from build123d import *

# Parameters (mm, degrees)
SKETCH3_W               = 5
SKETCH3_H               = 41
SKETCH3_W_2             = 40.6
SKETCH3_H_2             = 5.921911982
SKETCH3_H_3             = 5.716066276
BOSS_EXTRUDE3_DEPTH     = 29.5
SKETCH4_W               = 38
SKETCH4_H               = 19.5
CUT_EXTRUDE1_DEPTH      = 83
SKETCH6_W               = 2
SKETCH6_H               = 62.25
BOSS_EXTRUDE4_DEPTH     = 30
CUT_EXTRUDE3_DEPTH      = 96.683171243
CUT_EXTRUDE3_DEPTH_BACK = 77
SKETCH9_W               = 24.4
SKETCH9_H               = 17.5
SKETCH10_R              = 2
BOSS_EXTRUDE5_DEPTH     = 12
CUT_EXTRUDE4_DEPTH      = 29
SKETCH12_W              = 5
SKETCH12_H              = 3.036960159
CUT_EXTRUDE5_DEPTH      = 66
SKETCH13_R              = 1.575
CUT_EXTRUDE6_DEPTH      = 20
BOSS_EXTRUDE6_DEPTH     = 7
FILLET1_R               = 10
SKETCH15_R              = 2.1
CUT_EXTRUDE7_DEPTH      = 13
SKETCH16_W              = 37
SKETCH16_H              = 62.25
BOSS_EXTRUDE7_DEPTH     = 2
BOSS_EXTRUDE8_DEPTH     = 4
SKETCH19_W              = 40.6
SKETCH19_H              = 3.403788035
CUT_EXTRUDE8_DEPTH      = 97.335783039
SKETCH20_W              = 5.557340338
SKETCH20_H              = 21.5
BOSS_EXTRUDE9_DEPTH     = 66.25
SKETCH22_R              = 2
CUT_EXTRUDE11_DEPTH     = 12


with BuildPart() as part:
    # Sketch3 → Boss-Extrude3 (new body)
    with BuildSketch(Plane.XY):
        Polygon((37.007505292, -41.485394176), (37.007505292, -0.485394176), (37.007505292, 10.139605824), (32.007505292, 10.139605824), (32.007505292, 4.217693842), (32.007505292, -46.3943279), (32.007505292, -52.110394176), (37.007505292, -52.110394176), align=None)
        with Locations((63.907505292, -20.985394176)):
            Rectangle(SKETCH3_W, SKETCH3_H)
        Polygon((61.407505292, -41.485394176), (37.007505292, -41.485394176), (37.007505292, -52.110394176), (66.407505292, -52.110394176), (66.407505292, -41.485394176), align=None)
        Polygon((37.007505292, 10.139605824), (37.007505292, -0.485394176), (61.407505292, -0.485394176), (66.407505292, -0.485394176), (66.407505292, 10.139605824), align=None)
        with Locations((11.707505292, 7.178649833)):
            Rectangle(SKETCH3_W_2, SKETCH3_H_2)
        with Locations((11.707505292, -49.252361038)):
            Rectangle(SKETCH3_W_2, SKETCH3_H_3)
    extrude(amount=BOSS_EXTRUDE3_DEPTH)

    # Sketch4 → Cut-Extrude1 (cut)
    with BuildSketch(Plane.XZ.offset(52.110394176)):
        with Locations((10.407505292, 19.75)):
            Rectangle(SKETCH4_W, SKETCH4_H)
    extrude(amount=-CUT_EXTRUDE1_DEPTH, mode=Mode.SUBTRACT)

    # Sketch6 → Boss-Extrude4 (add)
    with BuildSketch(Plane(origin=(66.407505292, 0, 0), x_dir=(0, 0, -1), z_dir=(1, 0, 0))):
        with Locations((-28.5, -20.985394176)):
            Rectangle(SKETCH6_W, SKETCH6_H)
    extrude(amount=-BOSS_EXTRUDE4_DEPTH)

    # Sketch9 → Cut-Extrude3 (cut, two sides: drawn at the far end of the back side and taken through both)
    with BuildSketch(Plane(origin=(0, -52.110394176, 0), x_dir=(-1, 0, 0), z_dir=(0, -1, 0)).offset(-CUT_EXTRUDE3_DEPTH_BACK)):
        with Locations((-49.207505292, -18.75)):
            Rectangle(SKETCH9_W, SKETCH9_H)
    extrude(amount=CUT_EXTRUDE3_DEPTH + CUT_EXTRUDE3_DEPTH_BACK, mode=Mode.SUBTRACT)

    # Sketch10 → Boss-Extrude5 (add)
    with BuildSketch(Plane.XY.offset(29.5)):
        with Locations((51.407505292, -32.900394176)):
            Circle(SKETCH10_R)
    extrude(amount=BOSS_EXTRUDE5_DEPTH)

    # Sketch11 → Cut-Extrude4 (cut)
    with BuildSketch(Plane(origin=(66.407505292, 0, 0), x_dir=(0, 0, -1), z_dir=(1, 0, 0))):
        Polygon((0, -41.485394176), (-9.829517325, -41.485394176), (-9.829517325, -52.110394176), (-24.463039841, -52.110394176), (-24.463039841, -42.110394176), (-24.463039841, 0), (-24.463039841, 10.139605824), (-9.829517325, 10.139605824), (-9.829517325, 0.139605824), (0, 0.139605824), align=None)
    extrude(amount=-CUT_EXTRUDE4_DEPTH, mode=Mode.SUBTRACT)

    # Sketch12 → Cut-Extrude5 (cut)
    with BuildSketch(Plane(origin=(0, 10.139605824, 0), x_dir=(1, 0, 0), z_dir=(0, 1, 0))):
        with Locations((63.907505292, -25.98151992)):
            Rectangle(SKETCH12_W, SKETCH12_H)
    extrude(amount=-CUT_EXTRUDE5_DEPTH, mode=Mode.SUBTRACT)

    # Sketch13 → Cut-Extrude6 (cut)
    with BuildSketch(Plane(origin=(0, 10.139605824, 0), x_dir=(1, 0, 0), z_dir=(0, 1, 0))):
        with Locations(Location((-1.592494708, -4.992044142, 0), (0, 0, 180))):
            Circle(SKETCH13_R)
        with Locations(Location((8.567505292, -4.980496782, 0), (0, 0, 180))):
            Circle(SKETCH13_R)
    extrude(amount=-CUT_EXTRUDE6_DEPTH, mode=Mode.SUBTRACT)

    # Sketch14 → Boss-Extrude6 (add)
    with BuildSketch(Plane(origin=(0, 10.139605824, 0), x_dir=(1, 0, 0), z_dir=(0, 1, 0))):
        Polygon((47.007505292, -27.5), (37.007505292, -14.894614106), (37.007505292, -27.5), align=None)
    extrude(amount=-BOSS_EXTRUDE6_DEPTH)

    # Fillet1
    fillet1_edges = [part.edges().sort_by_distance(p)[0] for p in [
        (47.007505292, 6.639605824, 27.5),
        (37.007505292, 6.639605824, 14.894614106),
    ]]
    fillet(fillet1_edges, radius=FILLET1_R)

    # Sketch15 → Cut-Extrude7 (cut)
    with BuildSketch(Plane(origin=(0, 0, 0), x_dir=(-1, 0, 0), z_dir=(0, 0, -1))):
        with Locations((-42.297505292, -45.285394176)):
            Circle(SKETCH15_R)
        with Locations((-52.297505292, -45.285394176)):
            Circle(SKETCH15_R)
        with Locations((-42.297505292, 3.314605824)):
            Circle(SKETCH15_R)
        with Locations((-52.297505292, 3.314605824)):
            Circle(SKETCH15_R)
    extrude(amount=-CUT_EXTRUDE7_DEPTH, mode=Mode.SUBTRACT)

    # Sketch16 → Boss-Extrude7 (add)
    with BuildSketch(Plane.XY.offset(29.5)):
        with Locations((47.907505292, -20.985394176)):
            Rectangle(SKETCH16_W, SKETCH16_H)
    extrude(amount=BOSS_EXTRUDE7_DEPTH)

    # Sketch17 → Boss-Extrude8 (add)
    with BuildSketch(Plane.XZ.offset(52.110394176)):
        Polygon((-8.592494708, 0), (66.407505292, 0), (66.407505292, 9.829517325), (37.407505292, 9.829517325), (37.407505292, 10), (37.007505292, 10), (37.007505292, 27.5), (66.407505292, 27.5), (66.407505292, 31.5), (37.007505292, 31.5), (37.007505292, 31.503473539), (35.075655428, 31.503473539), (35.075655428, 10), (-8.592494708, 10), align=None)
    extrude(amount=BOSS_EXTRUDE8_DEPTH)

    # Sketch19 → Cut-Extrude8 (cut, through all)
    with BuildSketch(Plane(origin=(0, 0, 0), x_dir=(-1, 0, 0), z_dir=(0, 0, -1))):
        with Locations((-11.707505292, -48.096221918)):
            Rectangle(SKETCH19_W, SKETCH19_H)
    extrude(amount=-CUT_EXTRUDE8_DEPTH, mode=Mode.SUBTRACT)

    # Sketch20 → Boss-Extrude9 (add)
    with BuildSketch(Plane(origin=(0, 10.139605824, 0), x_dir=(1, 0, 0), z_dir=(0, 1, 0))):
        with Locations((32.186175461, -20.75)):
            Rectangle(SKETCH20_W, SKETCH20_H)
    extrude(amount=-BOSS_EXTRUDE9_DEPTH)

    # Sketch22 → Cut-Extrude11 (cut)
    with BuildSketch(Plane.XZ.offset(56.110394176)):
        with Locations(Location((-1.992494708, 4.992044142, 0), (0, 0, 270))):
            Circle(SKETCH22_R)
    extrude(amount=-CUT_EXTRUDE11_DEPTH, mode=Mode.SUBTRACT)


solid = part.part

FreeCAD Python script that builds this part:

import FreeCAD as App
import Part
import Sketcher
Q = App.Units.Quantity


def edges_at(feature, points):
    """Names of the edges that pass closest to the given points."""
    edges = feature.Shape.Edges
    near = lambda p: min(range(len(edges)), key=lambda i: edges[i].distToShape(Part.Vertex(*p))[0])
    return sorted({f"Edge{near(p) + 1}" for p in points})


def add_polygon(sketch, points):
    """Adds a closed chain of lines whose ends are joined by coincident constraints."""
    first, n = sketch.GeometryCount, len(points)
    for a, b in zip(points, points[1:] + points[:1]):
        sketch.addGeometry(Part.LineSegment(App.Vector(*a, 0), App.Vector(*b, 0)), False)
    for i in range(n):
        sketch.addConstraint(Sketcher.Constraint("Coincident", first + i, 2, first + (i + 1) % n, 1))

doc = App.newDocument("Part")
body = doc.addObject("PartDesign::Body", "Body")

sketch1 = body.newObject("Sketcher::SketchObject", "Sketch")
sketch1.AttachmentSupport = (doc.getObject("XY_Plane"), [""])
sketch1.MapMode = "FlatFace"
add_polygon(sketch1, [(32, 4), (32, -46), (-9, -46), (-9, -52), (66, -52), (66, 10), (-9, 10), (-9, 4)])
add_polygon(sketch1, [(61, 0), (61, -41), (37, -41), (37, 0)])
sketch1.addConstraint(Sketcher.Constraint("Vertical", 0))
sketch1.addConstraint(Sketcher.Constraint("Horizontal", 1))
sketch1.addConstraint(Sketcher.Constraint("Vertical", 2))
sketch1.addConstraint(Sketcher.Constraint("Horizontal", 3))
sketch1.addConstraint(Sketcher.Constraint("Vertical", 4))
sketch1.addConstraint(Sketcher.Constraint("Horizontal", 5))
sketch1.addConstraint(Sketcher.Constraint("Vertical", 6))
sketch1.addConstraint(Sketcher.Constraint("Horizontal", 7))
sketch1.addConstraint(Sketcher.Constraint("Vertical", 8))
sketch1.addConstraint(Sketcher.Constraint("Horizontal", 9))
sketch1.addConstraint(Sketcher.Constraint("Vertical", 10))
sketch1.addConstraint(Sketcher.Constraint("Horizontal", 11))
sketch1.addConstraint(Sketcher.Constraint("Vertical", 2, 2, 5, 2))
sketch1.addConstraint(Sketcher.Constraint("DistanceX", 3, 1, 3, 2, Q("75 mm")))
sketch1.addConstraint(Sketcher.Constraint("DistanceY", 8, 2, 8, 1, Q("41 mm")))
sketch1.addConstraint(Sketcher.Constraint("DistanceX", 1, 2, 1, 1, Q("40.6 mm")))
sketch1.addConstraint(Sketcher.Constraint("DistanceX", 9, 2, 9, 1, Q("24.4 mm")))
sketch1.addConstraint(Sketcher.Constraint("DistanceX", 8, 2, 3, 2, Q("5 mm")))
sketch1.addConstraint(Sketcher.Constraint("DistanceY", 4, 1, 4, 2, Q("62.25 mm")))
sketch1.addConstraint(Sketcher.Constraint("DistanceY", 3, 2, 8, 2, Q("10.625 mm")))
sketch1.addConstraint(Sketcher.Constraint("DistanceY", 0, 2, 0, 1, Q("50.612022 mm")))
sketch1.addConstraint(Sketcher.Constraint("DistanceY", 6, 2, 6, 1, Q("5.921912 mm")))
sketch1.addConstraint(Sketcher.Constraint("DistanceX", -1, 1, 0, 2, Q("32.007505 mm")))
sketch1.addConstraint(Sketcher.Constraint("DistanceY", 0, 2, -1, 1, Q("46.394328 mm")))
pad1 = body.newObject("PartDesign::Pad", "Pad")
pad1.Profile = sketch1
pad1.Length = 29.5

sketch2 = body.newObject("Sketcher::SketchObject", "Sketch001")
sketch2.AttachmentSupport = (doc.getObject("XZ_Plane"), [""])
sketch2.MapMode = "FlatFace"
sketch2.AttachmentOffset = App.Placement(App.Vector(0, 0, 52.110394), App.Rotation())
add_polygon(sketch2, [(-9, 30), (-9, 10), (29, 10), (29, 30)])
sketch2.addConstraint(Sketcher.Constraint("Vertical", 0))
sketch2.addConstraint(Sketcher.Constraint("Horizontal", 1))
sketch2.addConstraint(Sketcher.Constraint("Vertical", 2))
sketch2.addConstraint(Sketcher.Constraint("Horizontal", 3))
sketch2.addConstraint(Sketcher.Constraint("DistanceX", 1, 1, 1, 2, Q("38 mm")))
sketch2.addConstraint(Sketcher.Constraint("DistanceY", 0, 2, 0, 1, Q("19.5 mm")))
sketch2.addConstraint(Sketcher.Constraint("DistanceY", -1, 1, 0, 2, Q("10 mm")))
sketch2.addConstraint(Sketcher.Constraint("DistanceX", 0, 2, -1, 1, Q("8.592495 mm")))
pocket1 = body.newObject("PartDesign::Pocket", "Pocket")
pocket1.Profile = sketch2
pocket1.Length = 83

sketch3 = body.newObject("Sketcher::SketchObject", "Sketch002")
sketch3.AttachmentSupport = (doc.getObject("YZ_Plane"), [""])
sketch3.MapMode = "FlatFace"
sketch3.AttachmentOffset = App.Placement(App.Vector(0, 0, 66.407505), App.Rotation())
add_polygon(sketch3, [(10.1, 29.5), (-52.1, 29.5), (-52.1, 27.5), (10.1, 27.5)])
sketch3.addConstraint(Sketcher.Constraint("Horizontal", 0))
sketch3.addConstraint(Sketcher.Constraint("Vertical", 1))
sketch3.addConstraint(Sketcher.Constraint("Horizontal", 2))
sketch3.addConstraint(Sketcher.Constraint("Vertical", 3))
sketch3.addConstraint(Sketcher.Constraint("DistanceY", 1, 2, 1, 1, Q("2 mm")))
sketch3.addConstraint(Sketcher.Constraint("DistanceX", 0, 2, 0, 1, Q("62.25 mm")))
sketch3.addConstraint(Sketcher.Constraint("DistanceY", -1, 1, 0, 2, Q("29.5 mm")))
sketch3.addConstraint(Sketcher.Constraint("DistanceX", 0, 2, -1, 1, Q("52.110394 mm")))
pad2 = body.newObject("PartDesign::Pad", "Pad001")
pad2.Profile = sketch3
pad2.Length = 30
pad2.Reversed = True

sketch4 = body.newObject("Sketcher::SketchObject", "Sketch003")
sketch4.AttachmentSupport = (doc.getObject("XZ_Plane"), [""])
sketch4.MapMode = "FlatFace"
sketch4.AttachmentOffset = App.Placement(App.Vector(0, 0, 52.110394), App.Rotation())
add_polygon(sketch4, [(61, 10), (61, 28), (37, 28), (37, 10)])
sketch4.addConstraint(Sketcher.Constraint("Vertical", 0))
sketch4.addConstraint(Sketcher.Constraint("Horizontal", 1))
sketch4.addConstraint(Sketcher.Constraint("Vertical", 2))
sketch4.addConstraint(Sketcher.Constraint("Horizontal", 3))
sketch4.addConstraint(Sketcher.Constraint("DistanceX", 1, 2, 1, 1, Q("24.4 mm")))
sketch4.addConstraint(Sketcher.Constraint("DistanceY", 0, 1, 0, 2, Q("17.5 mm")))
sketch4.addConstraint(Sketcher.Constraint("DistanceY", -1, 1, 2, 2, Q("10 mm")))
sketch4.addConstraint(Sketcher.Constraint("DistanceX", -1, 1, 0, 2, Q("61.407505 mm")))
pocket2 = body.newObject("PartDesign::Pocket", "Pocket001")
pocket2.Profile = sketch4
pocket2.Type = "ThroughAll"
pocket2.Midplane = True

sketch5 = body.newObject("Sketcher::SketchObject", "Sketch004")
sketch5.AttachmentSupport = (doc.getObject("XY_Plane"), [""])
sketch5.MapMode = "FlatFace"
sketch5.AttachmentOffset = App.Placement(App.Vector(0, 0, 29.5), App.Rotation())
sketch5.addGeometry(Part.Circle(App.Vector(51.4, -32.9, 0), App.Vector(0, 0, 1), 2), False)
sketch5.addConstraint(Sketcher.Constraint("Diameter", 0, Q("4 mm")))
sketch5.addConstraint(Sketcher.Constraint("DistanceX", -1, 1, 0, 3, Q("51.407505 mm")))
sketch5.addConstraint(Sketcher.Constraint("DistanceY", 0, 3, -1, 1, Q("32.900394 mm")))
pad3 = body.newObject("PartDesign::Pad", "Pad002")
pad3.Profile = sketch5
pad3.Length = 12

sketch6 = body.newObject("Sketcher::SketchObject", "Sketch005")
sketch6.AttachmentSupport = (doc.getObject("YZ_Plane"), [""])
sketch6.MapMode = "FlatFace"
sketch6.AttachmentOffset = App.Placement(App.Vector(0, 0, 66.407505), App.Rotation())
add_polygon(sketch6, [(-41, 10), (-41, 0), (0, 0), (0, 10), (10, 10), (10, 24), (-52, 24), (-52, 10)])
sketch6.addConstraint(Sketcher.Constraint("Vertical", 0))
sketch6.addConstraint(Sketcher.Constraint("Horizontal", 1))
sketch6.addConstraint(Sketcher.Constraint("Vertical", 2))
sketch6.addConstraint(Sketcher.Constraint("Horizontal", 3))
sketch6.addConstraint(Sketcher.Constraint("Vertical", 4))
sketch6.addConstraint(Sketcher.Constraint("Horizontal", 5))
sketch6.addConstraint(Sketcher.Constraint("Vertical", 6))
sketch6.addConstraint(Sketcher.Constraint("Horizontal", 7))
sketch6.addConstraint(Sketcher.Constraint("PointOnObject", 0, 2, -1))
sketch6.addConstraint(Sketcher.Constraint("Horizontal", 3, 2, 6, 2))
sketch6.addConstraint(Sketcher.Constraint("DistanceX", 3, 1, 3, 2, Q("10 mm")))
sketch6.addConstraint(Sketcher.Constraint("DistanceX", 5, 2, 5, 1, Q("62.25 mm")))
sketch6.addConstraint(Sketcher.Constraint("DistanceX", 1, 1, 1, 2, Q("41.625 mm")))
sketch6.addConstraint(Sketcher.Constraint("DistanceY", 0, 2, 0, 1, Q("9.829517 mm")))
sketch6.addConstraint(Sketcher.Constraint("DistanceY", 4, 1, 4, 2, Q("14.633523 mm")))
sketch6.addConstraint(Sketcher.Constraint("DistanceX", 0, 2, -1, 1, Q("41.485394 mm")))
pocket3 = body.newObject("PartDesign::Pocket", "Pocket002")
pocket3.Profile = sketch6
pocket3.Length = 29

sketch7 = body.newObject("Sketcher::SketchObject", "Sketch006")
sketch7.AttachmentSupport = (doc.getObject("XZ_Plane"), [""])
sketch7.MapMode = "FlatFace"
sketch7.AttachmentOffset = App.Placement(App.Vector(0, 0, -10.139606), App.Rotation())
add_polygon(sketch7, [(61.4, 24.5), (61.4, 27.5), (66.4, 27.5), (66.4, 24.5)])
sketch7.addConstraint(Sketcher.Constraint("Vertical", 0))
sketch7.addConstraint(Sketcher.Constraint("Horizontal", 1))
sketch7.addConstraint(Sketcher.Constraint("Vertical", 2))
sketch7.addConstraint(Sketcher.Constraint("Horizontal", 3))
sketch7.addConstraint(Sketcher.Constraint("DistanceX", 1, 1, 1, 2, Q("5 mm")))
sketch7.addConstraint(Sketcher.Constraint("DistanceY", -1, 1, 0, 2, Q("27.5 mm")))
sketch7.addConstraint(Sketcher.Constraint("DistanceY", 0, 1, 0, 2, Q("3.03696 mm")))
sketch7.addConstraint(Sketcher.Constraint("DistanceX", -1, 1, 0, 2, Q("61.407505 mm")))
pocket4 = body.newObject("PartDesign::Pocket", "Pocket003")
pocket4.Profile = sketch7
pocket4.Length = 66
pocket4.Reversed = True

sketch8 = body.newObject("Sketcher::SketchObject", "Sketch007")
sketch8.AttachmentSupport = (doc.getObject("XZ_Plane"), [""])
sketch8.MapMode = "FlatFace"
sketch8.AttachmentOffset = App.Placement(App.Vector(0, 0, -10.139606), App.Rotation())
sketch8.addGeometry(Part.Circle(App.Vector(-1.6, 5, 0), App.Vector(0, 0, 1), 1.6), False)
sketch8.addGeometry(Part.Circle(App.Vector(8.6, 5, 0), App.Vector(0, 0, 1), 1.6), False)
sketch8.addConstraint(Sketcher.Constraint("Equal", 0, 1))
sketch8.addConstraint(Sketcher.Constraint("Diameter", 0, Q("3.15 mm")))
sketch8.addConstraint(Sketcher.Constraint("DistanceX", 0, 3, 1, 3, Q("10.16 mm")))
sketch8.addConstraint(Sketcher.Constraint("DistanceX", 0, 3, -1, 1, Q("1.592495 mm")))
sketch8.addConstraint(Sketcher.Constraint("DistanceY", -1, 1, 0, 3, Q("4.992044 mm")))
sketch8.addConstraint(Sketcher.Constraint("DistanceY", -1, 1, 1, 3, Q("4.980497 mm")))
pocket5 = body.newObject("PartDesign::Pocket", "Pocket004")
pocket5.Profile = sketch8
pocket5.Length = 20
pocket5.Reversed = True

sketch9 = body.newObject("Sketcher::SketchObject", "Sketch008")
sketch9.AttachmentSupport = (doc.getObject("XZ_Plane"), [""])
sketch9.MapMode = "FlatFace"
sketch9.AttachmentOffset = App.Placement(App.Vector(0, 0, -10.139606), App.Rotation())
add_polygon(sketch9, [(47, 28), (37, 15), (37, 28)])
sketch9.addConstraint(Sketcher.Constraint("Vertical", 1))
sketch9.addConstraint(Sketcher.Constraint("Horizontal", 2))
sketch9.addConstraint(Sketcher.Constraint("DistanceX", 2, 1, 2, 2, Q("10 mm")))
sketch9.addConstraint(Sketcher.Constraint("DistanceY", -1, 1, 1, 2, Q("27.5 mm")))
sketch9.addConstraint(Sketcher.Constraint("DistanceY", 1, 1, 1, 2, Q("12.605386 mm")))
sketch9.addConstraint(Sketcher.Constraint("DistanceX", -1, 1, 0, 2, Q("37.007505 mm")))
pad4 = body.newObject("PartDesign::Pad", "Pad003")
pad4.Profile = sketch9
pad4.Length = 7
doc.recompute()

fillet = body.newObject("PartDesign::Fillet", "Fillet")
fillet.Base = (pad4, edges_at(pad4, [(47.008, 6.64, 27.5), (37.008, 6.64, 14.895)]))
fillet.Radius = 10

sketch10 = body.newObject("Sketcher::SketchObject", "Sketch009")
sketch10.AttachmentSupport = (doc.getObject("XY_Plane"), [""])
sketch10.MapMode = "FlatFace"
sketch10.addGeometry(Part.Circle(App.Vector(42.3, -45.3, 0), App.Vector(0, 0, 1), 2.1), False)
sketch10.addGeometry(Part.Circle(App.Vector(52.3, -45.3, 0), App.Vector(0, 0, 1), 2.1), False)
sketch10.addGeometry(Part.Circle(App.Vector(42.3, 3.3, 0), App.Vector(0, 0, 1), 2.1), False)
sketch10.addGeometry(Part.Circle(App.Vector(52.3, 3.3, 0), App.Vector(0, 0, 1), 2.1), False)
sketch10.addConstraint(Sketcher.Constraint("Equal", 0, 1))
sketch10.addConstraint(Sketcher.Constraint("Equal", 1, 2))
sketch10.addConstraint(Sketcher.Constraint("Equal", 2, 3))
sketch10.addConstraint(Sketcher.Constraint("Horizontal", 0, 3, 1, 3))
sketch10.addConstraint(Sketcher.Constraint("Horizontal", 2, 3, 3, 3))
sketch10.addConstraint(Sketcher.Constraint("Vertical", 0, 3, 2, 3))
sketch10.addConstraint(Sketcher.Constraint("Vertical", 1, 3, 3, 3))
sketch10.addConstraint(Sketcher.Constraint("Diameter", 0, Q("4.2 mm")))
sketch10.addConstraint(Sketcher.Constraint("DistanceX", 0, 3, 1, 3, Q("10 mm")))
sketch10.addConstraint(Sketcher.Constraint("DistanceY", 0, 3, 2, 3, Q("48.6 mm")))
sketch10.addConstraint(Sketcher.Constraint("DistanceX", -1, 1, 0, 3, Q("42.297505 mm")))
sketch10.addConstraint(Sketcher.Constraint("DistanceY", 0, 3, -1, 1, Q("45.285394 mm")))
pocket6 = body.newObject("PartDesign::Pocket", "Pocket005")
pocket6.Profile = sketch10
pocket6.Length = 13
pocket6.Reversed = True

sketch11 = body.newObject("Sketcher::SketchObject", "Sketch010")
sketch11.AttachmentSupport = (doc.getObject("XY_Plane"), [""])
sketch11.MapMode = "FlatFace"
sketch11.AttachmentOffset = App.Placement(App.Vector(0, 0, 29.5), App.Rotation())
add_polygon(sketch11, [(29, 10), (29, -52), (66, -52), (66, 10)])
sketch11.addConstraint(Sketcher.Constraint("Vertical", 0))
sketch11.addConstraint(Sketcher.Constraint("Horizontal", 1))
sketch11.addConstraint(Sketcher.Constraint("Vertical", 2))
sketch11.addConstraint(Sketcher.Constraint("Horizontal", 3))
sketch11.addConstraint(Sketcher.Constraint("DistanceX", 1, 1, 1, 2, Q("37 mm")))
sketch11.addConstraint(Sketcher.Constraint("DistanceY", 0, 2, 0, 1, Q("62.25 mm")))
sketch11.addConstraint(Sketcher.Constraint("DistanceX", -1, 1, 0, 2, Q("29.407505 mm")))
sketch11.addConstraint(Sketcher.Constraint("DistanceY", 0, 2, -1, 1, Q("52.110394 mm")))
pad5 = body.newObject("PartDesign::Pad", "Pad004")
pad5.Profile = sketch11
pad5.Length = 2

sketch12 = body.newObject("Sketcher::SketchObject", "Sketch011")
sketch12.AttachmentSupport = (doc.getObject("XZ_Plane"), [""])
sketch12.MapMode = "FlatFace"
sketch12.AttachmentOffset = App.Placement(App.Vector(0, 0, 52.110394), App.Rotation())
add_polygon(sketch12, [(-8.5925, 0), (66.4075, 0), (66.4075, 9.8295), (37.4075, 9.8295), (37.4075, 10), (37.0075, 10), (37.0075, 27.5), (66.4075, 27.5), (66.4075, 31.5), (37.0075, 31.5), (37.0075, 31.5035), (35.0757, 31.5035), (35.0757, 10), (-8.5925, 10)])
sketch12.addConstraint(Sketcher.Constraint("Horizontal", 0))
sketch12.addConstraint(Sketcher.Constraint("Vertical", 1))
sketch12.addConstraint(Sketcher.Constraint("Horizontal", 2))
sketch12.addConstraint(Sketcher.Constraint("Vertical", 3))
sketch12.addConstraint(Sketcher.Constraint("Horizontal", 4))
sketch12.addConstraint(Sketcher.Constraint("Vertical", 5))
sketch12.addConstraint(Sketcher.Constraint("Horizontal", 6))
sketch12.addConstraint(Sketcher.Constraint("Vertical", 7))
sketch12.addConstraint(Sketcher.Constraint("Horizontal", 8))
sketch12.addConstraint(Sketcher.Constraint("Vertical", 9))
sketch12.addConstraint(Sketcher.Constraint("Horizontal", 10))
sketch12.addConstraint(Sketcher.Constraint("Vertical", 11))
sketch12.addConstraint(Sketcher.Constraint("Horizontal", 12))
sketch12.addConstraint(Sketcher.Constraint("Vertical", 13))
sketch12.addConstraint(Sketcher.Constraint("PointOnObject", 0, 2, -1))
sketch12.addConstraint(Sketcher.Constraint("Horizontal", 4, 2, 11, 2))
sketch12.addConstraint(Sketcher.Constraint("Vertical", 1, 2, 6, 2))
sketch12.addConstraint(Sketcher.Constraint("Vertical", 5, 2, 8, 2))
sketch12.addConstraint(Sketcher.Constraint("DistanceX", 0, 1, 0, 2, Q("75 mm")))
sketch12.addConstraint(Sketcher.Constraint("DistanceX", 2, 2, 2, 1, Q("29 mm")))
sketch12.addConstraint(Sketcher.Constraint("DistanceY", 7, 1, 7, 2, Q("4 mm")))
sketch12.addConstraint(Sketcher.Constraint("DistanceY", 13, 2, 13, 1, Q("10 mm")))
sketch12.addConstraint(Sketcher.Constraint("DistanceX", 4, 2, 4, 1, Q("0.4 mm")))
sketch12.addConstraint(Sketcher.Constraint("DistanceY", 5, 1, 5, 2, Q("17.5 mm")))
sketch12.addConstraint(Sketcher.Constraint("DistanceX", 10, 2, 10, 1, Q("1.93185 mm")))
sketch12.addConstraint(Sketcher.Constraint("DistanceY", 1, 1, 1, 2, Q("9.829517 mm")))
sketch12.addConstraint(Sketcher.Constraint("DistanceY", 9, 1, 9, 2, Q("0.003474 mm")))
sketch12.addConstraint(Sketcher.Constraint("DistanceX", -1, 1, 0, 2, Q("66.407505 mm")))
pad6 = body.newObject("PartDesign::Pad", "Pad005")
pad6.Profile = sketch12
pad6.Length = 4

sketch13 = body.newObject("Sketcher::SketchObject", "Sketch012")
sketch13.AttachmentSupport = (doc.getObject("XY_Plane"), [""])
sketch13.MapMode = "FlatFace"
add_polygon(sketch13, [(32, -46.4), (32, -49.8), (-8.6, -49.8), (-8.6, -46.4)])
sketch13.addConstraint(Sketcher.Constraint("Vertical", 0))
sketch13.addConstraint(Sketcher.Constraint("Horizontal", 1))
sketch13.addConstraint(Sketcher.Constraint("Vertical", 2))
sketch13.addConstraint(Sketcher.Constraint("Horizontal", 3))
sketch13.addConstraint(Sketcher.Constraint("DistanceX", 1, 2, 1, 1, Q("40.6 mm")))
sketch13.addConstraint(Sketcher.Constraint("DistanceY", 0, 2, 0, 1, Q("3.403788 mm")))
sketch13.addConstraint(Sketcher.Constraint("DistanceX", -1, 1, 0, 2, Q("32.007505 mm")))
sketch13.addConstraint(Sketcher.Constraint("DistanceY", 0, 2, -1, 1, Q("49.798116 mm")))
pocket7 = body.newObject("PartDesign::Pocket", "Pocket006")
pocket7.Profile = sketch13
pocket7.Type = "ThroughAll"
pocket7.Reversed = True

sketch14 = body.newObject("Sketcher::SketchObject", "Sketch013")
sketch14.AttachmentSupport = (doc.getObject("XZ_Plane"), [""])
sketch14.MapMode = "FlatFace"
sketch14.AttachmentOffset = App.Placement(App.Vector(0, 0, -10.139606), App.Rotation())
add_polygon(sketch14, [(29, 10), (29, 32), (35, 32), (35, 10)])
sketch14.addConstraint(Sketcher.Constraint("Vertical", 0))
sketch14.addConstraint(Sketcher.Constraint("Horizontal", 1))
sketch14.addConstraint(Sketcher.Constraint("Vertical", 2))
sketch14.addConstraint(Sketcher.Constraint("Horizontal", 3))
sketch14.addConstraint(Sketcher.Constraint("DistanceY", 0, 1, 0, 2, Q("21.5 mm")))
sketch14.addConstraint(Sketcher.Constraint("DistanceY", -1, 1, 2, 2, Q("10 mm")))
sketch14.addConstraint(Sketcher.Constraint("DistanceX", 1, 1, 1, 2, Q("5.55734 mm")))
sketch14.addConstraint(Sketcher.Constraint("DistanceX", -1, 1, 0, 2, Q("29.407505 mm")))
pad7 = body.newObject("PartDesign::Pad", "Pad006")
pad7.Profile = sketch14
pad7.Length = 66.25

sketch15 = body.newObject("Sketcher::SketchObject", "Sketch014")
sketch15.AttachmentSupport = (doc.getObject("XZ_Plane"), [""])
sketch15.MapMode = "FlatFace"
sketch15.AttachmentOffset = App.Placement(App.Vector(0, 0, 56.110394), App.Rotation())
sketch15.addGeometry(Part.Circle(App.Vector(-2, 5, 0), App.Vector(0, 0, 1), 2), False)
sketch15.addConstraint(Sketcher.Constraint("Diameter", 0, Q("4 mm")))
sketch15.addConstraint(Sketcher.Constraint("DistanceX", 0, 3, -1, 1, Q("1.992495 mm")))
sketch15.addConstraint(Sketcher.Constraint("DistanceY", -1, 1, 0, 3, Q("4.992044 mm")))
pocket8 = body.newObject("PartDesign::Pocket", "Pocket007")
pocket8.Profile = sketch15
pocket8.Length = 12

doc.recompute()
